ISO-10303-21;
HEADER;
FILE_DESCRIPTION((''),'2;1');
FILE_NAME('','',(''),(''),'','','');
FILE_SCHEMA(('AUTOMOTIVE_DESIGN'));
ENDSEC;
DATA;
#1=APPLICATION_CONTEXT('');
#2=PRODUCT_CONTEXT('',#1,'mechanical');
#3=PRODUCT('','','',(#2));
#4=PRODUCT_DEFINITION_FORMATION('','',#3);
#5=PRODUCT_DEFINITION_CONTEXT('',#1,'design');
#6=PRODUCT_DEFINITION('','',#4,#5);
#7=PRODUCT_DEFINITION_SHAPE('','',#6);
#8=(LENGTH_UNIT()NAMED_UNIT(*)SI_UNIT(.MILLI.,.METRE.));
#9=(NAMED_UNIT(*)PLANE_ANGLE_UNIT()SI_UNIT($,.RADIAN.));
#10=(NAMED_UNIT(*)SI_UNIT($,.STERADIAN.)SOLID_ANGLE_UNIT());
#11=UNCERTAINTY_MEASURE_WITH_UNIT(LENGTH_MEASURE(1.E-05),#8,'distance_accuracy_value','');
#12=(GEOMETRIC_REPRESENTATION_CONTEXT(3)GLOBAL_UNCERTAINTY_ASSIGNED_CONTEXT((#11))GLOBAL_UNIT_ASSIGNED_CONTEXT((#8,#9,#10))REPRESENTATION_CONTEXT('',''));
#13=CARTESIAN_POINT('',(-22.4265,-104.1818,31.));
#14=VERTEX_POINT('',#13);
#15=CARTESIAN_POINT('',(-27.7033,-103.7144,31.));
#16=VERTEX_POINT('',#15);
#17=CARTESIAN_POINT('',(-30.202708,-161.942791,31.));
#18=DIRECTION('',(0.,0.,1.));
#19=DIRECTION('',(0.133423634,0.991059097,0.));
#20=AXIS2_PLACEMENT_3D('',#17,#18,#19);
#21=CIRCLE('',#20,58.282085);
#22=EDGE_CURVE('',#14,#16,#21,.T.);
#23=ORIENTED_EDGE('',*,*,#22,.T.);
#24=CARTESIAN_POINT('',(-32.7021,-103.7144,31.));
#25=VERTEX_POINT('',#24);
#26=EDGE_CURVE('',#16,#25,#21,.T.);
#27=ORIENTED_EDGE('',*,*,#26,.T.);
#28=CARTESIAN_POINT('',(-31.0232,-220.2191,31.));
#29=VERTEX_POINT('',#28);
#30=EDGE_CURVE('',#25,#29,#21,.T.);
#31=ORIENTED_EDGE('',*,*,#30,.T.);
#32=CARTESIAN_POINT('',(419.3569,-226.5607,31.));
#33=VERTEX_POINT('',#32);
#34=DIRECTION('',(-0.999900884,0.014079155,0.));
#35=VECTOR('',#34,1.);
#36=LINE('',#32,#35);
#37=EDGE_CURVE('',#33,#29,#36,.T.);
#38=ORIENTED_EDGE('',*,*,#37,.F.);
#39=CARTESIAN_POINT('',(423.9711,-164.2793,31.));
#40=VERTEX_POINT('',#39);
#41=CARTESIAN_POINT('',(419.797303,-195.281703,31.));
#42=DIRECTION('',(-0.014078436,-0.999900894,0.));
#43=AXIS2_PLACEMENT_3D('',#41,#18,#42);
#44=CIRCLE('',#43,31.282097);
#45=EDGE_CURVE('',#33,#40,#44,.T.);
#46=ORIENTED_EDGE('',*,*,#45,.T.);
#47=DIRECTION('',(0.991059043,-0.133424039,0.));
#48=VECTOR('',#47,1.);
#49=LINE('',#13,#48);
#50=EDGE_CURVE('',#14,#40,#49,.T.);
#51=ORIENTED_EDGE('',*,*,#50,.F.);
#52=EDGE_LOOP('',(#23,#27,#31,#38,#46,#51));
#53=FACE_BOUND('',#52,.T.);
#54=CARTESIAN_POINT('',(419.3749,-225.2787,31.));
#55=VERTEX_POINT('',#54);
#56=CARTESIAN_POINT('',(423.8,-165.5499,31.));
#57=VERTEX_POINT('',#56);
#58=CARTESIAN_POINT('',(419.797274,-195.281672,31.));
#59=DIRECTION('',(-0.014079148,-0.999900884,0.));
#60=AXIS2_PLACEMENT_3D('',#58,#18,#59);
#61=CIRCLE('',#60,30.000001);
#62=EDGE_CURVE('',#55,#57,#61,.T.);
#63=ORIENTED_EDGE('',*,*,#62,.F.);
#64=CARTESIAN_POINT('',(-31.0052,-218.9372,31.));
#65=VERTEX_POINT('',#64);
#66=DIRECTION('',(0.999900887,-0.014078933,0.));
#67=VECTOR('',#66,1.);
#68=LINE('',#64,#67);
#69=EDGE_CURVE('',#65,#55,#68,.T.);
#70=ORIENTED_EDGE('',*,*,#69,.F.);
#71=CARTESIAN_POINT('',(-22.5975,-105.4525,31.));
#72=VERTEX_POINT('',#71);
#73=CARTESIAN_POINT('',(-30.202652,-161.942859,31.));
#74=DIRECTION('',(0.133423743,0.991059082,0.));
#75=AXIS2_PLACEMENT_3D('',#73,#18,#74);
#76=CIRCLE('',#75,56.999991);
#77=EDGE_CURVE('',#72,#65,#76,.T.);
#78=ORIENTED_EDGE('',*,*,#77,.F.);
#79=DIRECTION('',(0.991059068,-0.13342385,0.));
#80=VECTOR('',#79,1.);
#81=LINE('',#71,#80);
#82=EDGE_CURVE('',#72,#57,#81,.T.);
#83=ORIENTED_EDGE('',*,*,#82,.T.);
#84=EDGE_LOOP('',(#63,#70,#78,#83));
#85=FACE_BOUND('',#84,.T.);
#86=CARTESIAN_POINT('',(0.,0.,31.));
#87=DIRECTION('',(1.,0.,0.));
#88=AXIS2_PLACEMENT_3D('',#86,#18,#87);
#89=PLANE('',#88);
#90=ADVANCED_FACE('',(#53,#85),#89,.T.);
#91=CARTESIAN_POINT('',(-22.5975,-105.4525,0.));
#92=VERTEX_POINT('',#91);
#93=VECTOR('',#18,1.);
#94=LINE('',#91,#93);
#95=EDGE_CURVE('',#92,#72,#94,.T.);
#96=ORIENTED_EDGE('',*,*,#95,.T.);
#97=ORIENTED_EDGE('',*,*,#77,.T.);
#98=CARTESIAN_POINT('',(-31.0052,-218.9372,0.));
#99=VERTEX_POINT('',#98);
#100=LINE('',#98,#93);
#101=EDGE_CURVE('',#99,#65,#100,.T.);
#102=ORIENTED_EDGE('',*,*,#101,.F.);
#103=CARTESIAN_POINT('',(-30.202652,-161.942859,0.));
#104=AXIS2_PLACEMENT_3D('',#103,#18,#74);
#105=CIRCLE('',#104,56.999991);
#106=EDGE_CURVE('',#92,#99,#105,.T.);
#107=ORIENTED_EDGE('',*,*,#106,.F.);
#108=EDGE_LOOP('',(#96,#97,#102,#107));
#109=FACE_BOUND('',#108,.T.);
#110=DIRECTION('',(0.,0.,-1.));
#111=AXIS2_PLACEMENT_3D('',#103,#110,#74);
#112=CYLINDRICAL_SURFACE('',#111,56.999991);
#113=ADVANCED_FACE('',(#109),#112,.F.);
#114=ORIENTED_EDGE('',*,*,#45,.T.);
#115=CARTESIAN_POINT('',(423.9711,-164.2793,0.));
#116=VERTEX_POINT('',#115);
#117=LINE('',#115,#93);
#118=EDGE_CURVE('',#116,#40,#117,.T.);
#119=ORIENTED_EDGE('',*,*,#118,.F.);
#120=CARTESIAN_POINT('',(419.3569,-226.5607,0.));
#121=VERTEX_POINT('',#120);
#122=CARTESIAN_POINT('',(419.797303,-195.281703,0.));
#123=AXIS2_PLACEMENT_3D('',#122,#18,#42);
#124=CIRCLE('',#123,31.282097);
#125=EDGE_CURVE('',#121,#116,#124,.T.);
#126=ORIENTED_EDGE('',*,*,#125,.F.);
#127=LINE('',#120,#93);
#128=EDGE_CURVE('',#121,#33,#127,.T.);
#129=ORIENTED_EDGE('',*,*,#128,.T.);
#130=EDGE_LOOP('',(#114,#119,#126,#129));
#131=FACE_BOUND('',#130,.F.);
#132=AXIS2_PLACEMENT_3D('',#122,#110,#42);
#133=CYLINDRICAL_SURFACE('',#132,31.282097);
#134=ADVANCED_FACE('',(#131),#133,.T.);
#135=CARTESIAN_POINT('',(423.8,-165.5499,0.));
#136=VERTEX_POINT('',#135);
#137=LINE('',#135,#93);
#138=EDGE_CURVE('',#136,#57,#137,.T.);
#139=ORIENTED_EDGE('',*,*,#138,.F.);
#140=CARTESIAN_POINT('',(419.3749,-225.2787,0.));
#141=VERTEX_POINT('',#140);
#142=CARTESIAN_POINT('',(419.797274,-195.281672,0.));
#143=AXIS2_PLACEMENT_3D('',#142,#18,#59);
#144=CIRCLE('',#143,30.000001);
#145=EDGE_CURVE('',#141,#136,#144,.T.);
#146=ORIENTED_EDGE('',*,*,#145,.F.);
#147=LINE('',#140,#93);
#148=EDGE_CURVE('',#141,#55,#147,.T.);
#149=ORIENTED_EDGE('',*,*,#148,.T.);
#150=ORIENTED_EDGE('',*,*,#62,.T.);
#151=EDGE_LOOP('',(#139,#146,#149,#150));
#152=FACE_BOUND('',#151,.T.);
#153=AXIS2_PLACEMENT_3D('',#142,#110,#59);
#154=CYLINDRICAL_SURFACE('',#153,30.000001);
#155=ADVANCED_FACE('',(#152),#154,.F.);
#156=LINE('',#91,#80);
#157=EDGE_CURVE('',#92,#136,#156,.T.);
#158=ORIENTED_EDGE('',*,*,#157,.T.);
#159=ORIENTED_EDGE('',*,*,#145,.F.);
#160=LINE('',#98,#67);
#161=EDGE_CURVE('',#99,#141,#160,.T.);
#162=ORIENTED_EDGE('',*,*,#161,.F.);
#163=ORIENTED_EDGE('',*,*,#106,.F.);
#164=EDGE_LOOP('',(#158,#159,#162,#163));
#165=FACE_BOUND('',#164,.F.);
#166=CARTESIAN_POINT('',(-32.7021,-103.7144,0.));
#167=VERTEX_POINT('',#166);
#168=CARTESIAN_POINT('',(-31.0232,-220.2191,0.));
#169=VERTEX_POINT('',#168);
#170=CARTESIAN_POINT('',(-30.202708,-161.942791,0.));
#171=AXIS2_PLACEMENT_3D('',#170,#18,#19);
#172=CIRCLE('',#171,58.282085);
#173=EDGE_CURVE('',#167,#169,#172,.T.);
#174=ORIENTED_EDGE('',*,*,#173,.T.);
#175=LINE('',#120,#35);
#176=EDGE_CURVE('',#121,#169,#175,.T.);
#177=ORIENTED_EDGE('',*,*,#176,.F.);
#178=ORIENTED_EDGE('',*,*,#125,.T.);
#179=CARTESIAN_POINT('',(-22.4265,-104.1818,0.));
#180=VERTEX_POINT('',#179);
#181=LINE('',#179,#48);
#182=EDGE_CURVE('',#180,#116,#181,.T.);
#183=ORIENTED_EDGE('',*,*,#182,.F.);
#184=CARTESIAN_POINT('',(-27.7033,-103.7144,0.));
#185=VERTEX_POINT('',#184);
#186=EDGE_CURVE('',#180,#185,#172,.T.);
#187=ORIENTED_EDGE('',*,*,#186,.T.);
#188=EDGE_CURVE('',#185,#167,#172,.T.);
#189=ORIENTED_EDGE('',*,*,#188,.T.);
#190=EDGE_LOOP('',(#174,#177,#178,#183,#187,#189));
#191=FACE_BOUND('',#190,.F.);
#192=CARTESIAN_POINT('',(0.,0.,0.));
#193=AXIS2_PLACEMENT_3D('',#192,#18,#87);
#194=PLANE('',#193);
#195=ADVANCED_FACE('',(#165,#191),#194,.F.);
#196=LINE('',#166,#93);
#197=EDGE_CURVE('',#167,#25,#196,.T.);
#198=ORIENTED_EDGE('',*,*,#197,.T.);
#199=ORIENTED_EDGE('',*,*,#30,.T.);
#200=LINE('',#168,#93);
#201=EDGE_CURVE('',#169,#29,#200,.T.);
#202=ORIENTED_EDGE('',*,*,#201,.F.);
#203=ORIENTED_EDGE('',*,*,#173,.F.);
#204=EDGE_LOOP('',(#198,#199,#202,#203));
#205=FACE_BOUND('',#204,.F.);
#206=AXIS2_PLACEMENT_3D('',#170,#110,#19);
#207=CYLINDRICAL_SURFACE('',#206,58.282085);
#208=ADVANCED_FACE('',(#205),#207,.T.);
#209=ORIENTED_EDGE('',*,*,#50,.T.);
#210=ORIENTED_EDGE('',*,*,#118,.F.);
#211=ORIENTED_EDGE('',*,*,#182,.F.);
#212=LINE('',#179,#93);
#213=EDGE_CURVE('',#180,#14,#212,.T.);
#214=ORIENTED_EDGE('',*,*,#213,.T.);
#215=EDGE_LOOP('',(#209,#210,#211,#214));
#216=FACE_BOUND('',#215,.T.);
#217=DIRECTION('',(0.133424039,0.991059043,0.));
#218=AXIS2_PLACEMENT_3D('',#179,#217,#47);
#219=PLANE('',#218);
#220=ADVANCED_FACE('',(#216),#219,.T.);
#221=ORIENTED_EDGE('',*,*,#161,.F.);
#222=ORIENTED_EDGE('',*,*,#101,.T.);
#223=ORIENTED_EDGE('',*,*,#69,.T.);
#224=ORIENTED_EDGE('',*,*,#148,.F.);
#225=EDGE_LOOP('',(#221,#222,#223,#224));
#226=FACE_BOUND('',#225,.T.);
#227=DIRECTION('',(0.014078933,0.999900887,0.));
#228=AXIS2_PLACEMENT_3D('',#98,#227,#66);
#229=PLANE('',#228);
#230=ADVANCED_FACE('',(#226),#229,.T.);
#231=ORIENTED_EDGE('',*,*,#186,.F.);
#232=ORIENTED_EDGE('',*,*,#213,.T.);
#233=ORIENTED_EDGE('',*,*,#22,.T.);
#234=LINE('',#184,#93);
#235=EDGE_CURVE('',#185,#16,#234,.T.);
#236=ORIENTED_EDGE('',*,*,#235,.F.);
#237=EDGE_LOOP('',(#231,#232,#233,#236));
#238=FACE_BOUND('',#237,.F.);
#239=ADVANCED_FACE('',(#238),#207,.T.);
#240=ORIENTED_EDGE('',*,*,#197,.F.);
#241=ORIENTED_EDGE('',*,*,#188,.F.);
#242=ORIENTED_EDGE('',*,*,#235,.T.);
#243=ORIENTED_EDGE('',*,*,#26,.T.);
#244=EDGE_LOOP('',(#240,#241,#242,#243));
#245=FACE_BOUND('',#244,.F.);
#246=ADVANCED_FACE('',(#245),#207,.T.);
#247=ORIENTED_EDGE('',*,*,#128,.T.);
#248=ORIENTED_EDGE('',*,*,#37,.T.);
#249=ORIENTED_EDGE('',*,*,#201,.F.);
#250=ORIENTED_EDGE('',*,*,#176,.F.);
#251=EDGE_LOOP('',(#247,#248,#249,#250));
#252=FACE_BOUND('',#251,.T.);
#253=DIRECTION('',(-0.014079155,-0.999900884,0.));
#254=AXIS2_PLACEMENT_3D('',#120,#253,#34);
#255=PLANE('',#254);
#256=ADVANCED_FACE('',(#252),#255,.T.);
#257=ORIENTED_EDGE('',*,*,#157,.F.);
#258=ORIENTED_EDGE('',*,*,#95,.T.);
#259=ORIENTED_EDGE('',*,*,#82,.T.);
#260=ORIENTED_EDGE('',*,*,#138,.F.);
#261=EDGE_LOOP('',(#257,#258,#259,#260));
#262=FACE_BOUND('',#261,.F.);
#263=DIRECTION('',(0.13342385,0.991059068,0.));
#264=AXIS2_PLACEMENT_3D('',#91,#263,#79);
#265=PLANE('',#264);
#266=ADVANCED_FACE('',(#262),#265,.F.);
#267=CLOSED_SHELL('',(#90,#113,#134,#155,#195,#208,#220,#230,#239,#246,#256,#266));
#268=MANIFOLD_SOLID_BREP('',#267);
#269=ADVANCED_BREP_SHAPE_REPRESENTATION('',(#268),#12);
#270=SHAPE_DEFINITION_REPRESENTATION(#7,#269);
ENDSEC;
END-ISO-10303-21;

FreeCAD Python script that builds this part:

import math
import FreeCAD as App
import Part
import Sketcher

doc = App.newDocument("Part")
params = doc.addObject("Spreadsheet::Sheet", "Params")
for row, (alias, value) in enumerate([
    ("sketch1_radius", "57 mm"),
    ("sketch1_radius2", "30 mm"),
    ("pad1_length", "31 mm"),
], start=1):
    params.set(f"A{row}", alias)
    params.set(f"B{row}", "=" + value)
    params.setAlias(f"B{row}", alias)

body = doc.addObject("PartDesign::Body", "Body")

# Sketch on XY plane
sketch1 = doc.addObject("Sketcher::SketchObject", "Sketch")
body.addObject(sketch1)
sketch1.AttachmentSupport = (doc.XY_Plane, [""])
sketch1.MapMode = "FlatFace"
sketch1.addGeometry(Part.LineSegment(App.Vector(424, -164, 0), App.Vector(-22, -104, 0)), False)
sketch1.addGeometry(Part.ArcOfCircle(Part.Circle(App.Vector(-30, -162, 0), App.Vector(0, 0, 1), 58), math.radians(82), math.radians(269)), False)
sketch1.addGeometry(Part.LineSegment(App.Vector(-31, -220, 0), App.Vector(419, -227, 0)), False)
sketch1.addGeometry(Part.ArcOfCircle(Part.Circle(App.Vector(420, -195, 0), App.Vector(0, 0, 1), 31), math.radians(-91), math.radians(82)), False)
sketch1.addGeometry(Part.ArcOfCircle(Part.Circle(App.Vector(-30, -162, 0), App.Vector(0, 0, 1), 57), math.radians(82), math.radians(269)), False)
sketch1.addGeometry(Part.LineSegment(App.Vector(-23, -105, 0), App.Vector(424, -166, 0)), False)
sketch1.addGeometry(Part.ArcOfCircle(Part.Circle(App.Vector(420, -195, 0), App.Vector(0, 0, 1), 30), math.radians(-91), math.radians(82)), False)
sketch1.addGeometry(Part.LineSegment(App.Vector(419, -225, 0), App.Vector(-31, -219, 0)), False)
sketch1.addConstraint(Sketcher.Constraint("Tangent", 0, 2, 1, 1))
sketch1.addConstraint(Sketcher.Constraint("Tangent", 1, 2, 2, 1))
sketch1.addConstraint(Sketcher.Constraint("Tangent", 2, 2, 3, 1))
sketch1.addConstraint(Sketcher.Constraint("Tangent", 3, 2, 0, 1))
sketch1.addConstraint(Sketcher.Constraint("Tangent", 4, 1, 5, 1))
sketch1.addConstraint(Sketcher.Constraint("Tangent", 5, 2, 6, 2))
sketch1.addConstraint(Sketcher.Constraint("Tangent", 6, 1, 7, 1))
sketch1.addConstraint(Sketcher.Constraint("Tangent", 7, 2, 4, 2))
sketch1.addConstraint(Sketcher.Constraint("Coincident", 4, 3, 1, 3))
sketch1.addConstraint(Sketcher.Constraint("Coincident", 6, 3, 3, 3))
sketch1.addConstraint(Sketcher.Constraint("Parallel", 0, 5))
sketch1.addConstraint(Sketcher.Constraint("Radius", 4, 57.0))
sketch1.addConstraint(Sketcher.Constraint("Radius", 6, 30.0))
sketch1.addConstraint(Sketcher.Constraint("DistanceX", 1, 3, 3, 3, 450.0))
sketch1.addConstraint(Sketcher.Constraint("Radius", 1, 58.282))
sketch1.addConstraint(Sketcher.Constraint("DistanceX", -1, 1, 5, 2, 423.8))
sketch1.addConstraint(Sketcher.Constraint("DistanceY", 3, 3, 0, 2, 91.1))
sketch1.addConstraint(Sketcher.Constraint("DistanceY", 5, 2, -1, 1, 165.55))
sketch1.setExpression("Constraints[11]", "Params.sketch1_radius")
sketch1.setExpression("Constraints[12]", "Params.sketch1_radius2")
pad1 = doc.addObject("PartDesign::Pad", "Pad")
body.addObject(pad1)
pad1.Profile = sketch1
pad1.setExpression("Length", "Params.pad1_length")

doc.recompute()
